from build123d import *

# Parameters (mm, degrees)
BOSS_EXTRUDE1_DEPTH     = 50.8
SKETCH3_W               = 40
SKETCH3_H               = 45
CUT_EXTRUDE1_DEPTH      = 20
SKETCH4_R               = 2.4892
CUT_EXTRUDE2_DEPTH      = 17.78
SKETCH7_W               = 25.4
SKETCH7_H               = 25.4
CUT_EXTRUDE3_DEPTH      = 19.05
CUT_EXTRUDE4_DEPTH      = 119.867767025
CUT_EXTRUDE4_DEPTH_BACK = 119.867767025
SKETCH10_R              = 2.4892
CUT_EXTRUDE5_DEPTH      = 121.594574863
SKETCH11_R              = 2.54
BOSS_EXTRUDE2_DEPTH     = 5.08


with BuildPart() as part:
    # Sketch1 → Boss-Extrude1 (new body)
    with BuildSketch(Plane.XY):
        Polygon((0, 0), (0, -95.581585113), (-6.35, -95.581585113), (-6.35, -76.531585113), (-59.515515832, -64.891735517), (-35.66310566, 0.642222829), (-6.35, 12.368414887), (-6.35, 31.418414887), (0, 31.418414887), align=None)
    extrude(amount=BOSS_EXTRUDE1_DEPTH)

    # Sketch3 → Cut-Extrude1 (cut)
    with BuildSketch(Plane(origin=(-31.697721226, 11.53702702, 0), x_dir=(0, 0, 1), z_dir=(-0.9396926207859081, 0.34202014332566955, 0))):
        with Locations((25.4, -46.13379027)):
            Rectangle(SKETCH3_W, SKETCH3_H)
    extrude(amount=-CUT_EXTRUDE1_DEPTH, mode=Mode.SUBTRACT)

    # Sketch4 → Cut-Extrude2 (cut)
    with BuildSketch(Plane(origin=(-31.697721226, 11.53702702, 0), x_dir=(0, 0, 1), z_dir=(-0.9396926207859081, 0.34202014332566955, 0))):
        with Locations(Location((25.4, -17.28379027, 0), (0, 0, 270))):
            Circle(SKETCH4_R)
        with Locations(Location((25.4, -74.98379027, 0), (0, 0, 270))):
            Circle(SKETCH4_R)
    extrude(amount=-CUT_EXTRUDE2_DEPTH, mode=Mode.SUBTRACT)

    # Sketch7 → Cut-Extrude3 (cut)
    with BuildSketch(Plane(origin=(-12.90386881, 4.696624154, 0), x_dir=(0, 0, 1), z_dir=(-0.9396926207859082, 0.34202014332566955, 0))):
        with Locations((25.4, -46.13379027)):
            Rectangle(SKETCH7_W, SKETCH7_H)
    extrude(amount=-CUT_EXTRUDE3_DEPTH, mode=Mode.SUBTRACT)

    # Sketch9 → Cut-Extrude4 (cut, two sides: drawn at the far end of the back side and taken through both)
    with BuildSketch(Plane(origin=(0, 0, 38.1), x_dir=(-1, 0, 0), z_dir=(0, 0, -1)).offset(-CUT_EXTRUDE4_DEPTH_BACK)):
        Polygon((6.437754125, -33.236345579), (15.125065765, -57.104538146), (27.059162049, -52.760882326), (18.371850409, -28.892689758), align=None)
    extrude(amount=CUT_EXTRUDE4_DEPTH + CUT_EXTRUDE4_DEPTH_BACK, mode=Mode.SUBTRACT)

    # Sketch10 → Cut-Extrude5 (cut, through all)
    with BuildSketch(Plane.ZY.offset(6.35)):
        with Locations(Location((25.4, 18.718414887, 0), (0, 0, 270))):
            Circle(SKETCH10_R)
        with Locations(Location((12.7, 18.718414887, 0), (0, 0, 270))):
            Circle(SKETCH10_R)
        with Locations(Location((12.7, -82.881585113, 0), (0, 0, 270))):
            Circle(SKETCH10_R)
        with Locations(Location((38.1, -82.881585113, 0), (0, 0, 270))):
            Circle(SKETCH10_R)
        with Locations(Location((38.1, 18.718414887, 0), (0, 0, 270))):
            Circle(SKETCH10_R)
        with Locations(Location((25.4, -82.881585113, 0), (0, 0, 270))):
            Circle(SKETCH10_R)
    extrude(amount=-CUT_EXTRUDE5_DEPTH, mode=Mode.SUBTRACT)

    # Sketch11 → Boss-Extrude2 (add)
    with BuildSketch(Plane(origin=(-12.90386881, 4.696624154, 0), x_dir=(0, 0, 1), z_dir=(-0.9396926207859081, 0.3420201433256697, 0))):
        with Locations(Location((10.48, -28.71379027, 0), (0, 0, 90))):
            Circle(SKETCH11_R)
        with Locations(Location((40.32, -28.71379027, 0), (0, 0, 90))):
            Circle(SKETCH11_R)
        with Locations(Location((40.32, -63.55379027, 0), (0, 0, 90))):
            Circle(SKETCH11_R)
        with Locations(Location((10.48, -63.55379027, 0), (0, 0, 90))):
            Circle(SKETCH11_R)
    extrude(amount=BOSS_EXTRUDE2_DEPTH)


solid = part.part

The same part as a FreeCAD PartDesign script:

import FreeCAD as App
import Part
import Sketcher
from FreeCAD import Vector
Q = App.Units.Quantity

doc = App.newDocument("Part")
body = doc.addObject("PartDesign::Body", "Body")

# Sketch on XY plane
sketch1 = body.newObject("Sketcher::SketchObject", "Sketch")
sketch1.AttachmentSupport = (doc.getObject("XY_Plane"), [""])
sketch1.MapMode = "FlatFace"
sketch1.addGeometry(Part.LineSegment(Vector(0, -96, 0), Vector(0, 31, 0)), False)
sketch1.addGeometry(Part.LineSegment(Vector(0, 31, 0), Vector(-6, 31, 0)), False)
sketch1.addGeometry(Part.LineSegment(Vector(-6, 31, 0), Vector(-6, 12, 0)), False)
sketch1.addGeometry(Part.LineSegment(Vector(-6, 12, 0), Vector(-36, 1, 0)), False)
sketch1.addGeometry(Part.LineSegment(Vector(-36, 1, 0), Vector(-60, -65, 0)), False)
sketch1.addGeometry(Part.LineSegment(Vector(-60, -65, 0), Vector(-6, -77, 0)), False)
sketch1.addGeometry(Part.LineSegment(Vector(-6, -77, 0), Vector(-6, -96, 0)), False)
sketch1.addGeometry(Part.LineSegment(Vector(-6, -96, 0), Vector(0, -96, 0)), False)
sketch1.addConstraint(Sketcher.Constraint("Coincident", 0, 2, 1, 1))
sketch1.addConstraint(Sketcher.Constraint("Coincident", 1, 2, 2, 1))
sketch1.addConstraint(Sketcher.Constraint("Coincident", 2, 2, 3, 1))
sketch1.addConstraint(Sketcher.Constraint("Coincident", 3, 2, 4, 1))
sketch1.addConstraint(Sketcher.Constraint("Coincident", 4, 2, 5, 1))
sketch1.addConstraint(Sketcher.Constraint("Coincident", 5, 2, 6, 1))
sketch1.addConstraint(Sketcher.Constraint("Coincident", 6, 2, 7, 1))
sketch1.addConstraint(Sketcher.Constraint("Coincident", 7, 2, 0, 1))
sketch1.addConstraint(Sketcher.Constraint("Vertical", 0))
sketch1.addConstraint(Sketcher.Constraint("Horizontal", 1))
sketch1.addConstraint(Sketcher.Constraint("Vertical", 2))
sketch1.addConstraint(Sketcher.Constraint("Vertical", 6))
sketch1.addConstraint(Sketcher.Constraint("Horizontal", 7))
sketch1.addConstraint(Sketcher.Constraint("PointOnObject", 0, 2, -2))
sketch1.addConstraint(Sketcher.Constraint("Vertical", 2, 2, 5, 2))
sketch1.addConstraint(Sketcher.Constraint("Equal", 2, 6))
sketch1.addConstraint(Sketcher.Constraint("DistanceY", 0, 1, 0, 2, Q("5 in")))
sketch1.addConstraint(Sketcher.Constraint("Angle", 4, Q("-110 deg")))
sketch1.addConstraint(Sketcher.Constraint("DistanceX", 1, 2, 1, 1, Q("0.25 in")))
sketch1.addConstraint(Sketcher.Constraint("DistanceY", 2, 2, 2, 1, Q("0.75 in")))
sketch1.addConstraint(Sketcher.Constraint("Distance", 4, Q("69.739782 mm")))
sketch1.addConstraint(Sketcher.Constraint("DistanceY", 4, 2, 2, 2, Q("77.26015 mm")))
sketch1.addConstraint(Sketcher.Constraint("Distance", 3, Q("31.571534 mm")))
sketch1.addConstraint(Sketcher.Constraint("DistanceY", -1, 1, 0, 2, Q("31.418415 mm")))
pad1 = body.newObject("PartDesign::Pad", "Pad")
pad1.Profile = sketch1
pad1.Length = Q("2 in")

# Sketch on an angled plane
sketch2 = body.newObject("Sketcher::SketchObject", "Sketch001")
sketch2.Placement = App.Placement(Vector(-31.697721, 11.537027, 0), App.Rotation(Vector(0, 0, 1), Vector(0.342020143, 0.939692621, 0), Vector(-0.939692621, 0.342020143, 0), "ZXY"))
sketch2.addGeometry(Part.LineSegment(Vector(5, -24, 0), Vector(5, -69, 0)), False)
sketch2.addGeometry(Part.LineSegment(Vector(5, -69, 0), Vector(45, -69, 0)), False)
sketch2.addGeometry(Part.LineSegment(Vector(45, -69, 0), Vector(45, -24, 0)), False)
sketch2.addGeometry(Part.LineSegment(Vector(45, -24, 0), Vector(5, -24, 0)), False)
sketch2.addConstraint(Sketcher.Constraint("Coincident", 0, 2, 1, 1))
sketch2.addConstraint(Sketcher.Constraint("Coincident", 1, 2, 2, 1))
sketch2.addConstraint(Sketcher.Constraint("Coincident", 2, 2, 3, 1))
sketch2.addConstraint(Sketcher.Constraint("Coincident", 3, 2, 0, 1))
sketch2.addConstraint(Sketcher.Constraint("Vertical", 0))
sketch2.addConstraint(Sketcher.Constraint("Horizontal", 1))
sketch2.addConstraint(Sketcher.Constraint("Vertical", 2))
sketch2.addConstraint(Sketcher.Constraint("Horizontal", 3))
sketch2.addConstraint(Sketcher.Constraint("DistanceX", 1, 1, 1, 2, Q("40 mm")))
sketch2.addConstraint(Sketcher.Constraint("DistanceY", 0, 2, 0, 1, Q("45 mm")))
sketch2.addConstraint(Sketcher.Constraint("DistanceX", -1, 1, 0, 2, Q("5.4 mm")))
sketch2.addConstraint(Sketcher.Constraint("DistanceY", 0, 2, -1, 1, Q("68.63379 mm")))
pocket1 = body.newObject("PartDesign::Pocket", "Pocket")
pocket1.Profile = sketch2
pocket1.Length = 20

# Sketch on an angled plane
sketch3 = body.newObject("Sketcher::SketchObject", "Sketch002")
sketch3.Placement = App.Placement(Vector(-31.697721, 11.537027, 0), App.Rotation(Vector(0, 0, 1), Vector(0.342020143, 0.939692621, 0), Vector(-0.939692621, 0.342020143, 0), "ZXY"))
sketch3.addGeometry(Part.Circle(Vector(25.4, -17.3, 0), Vector(0, 0, 1), 2.5), False)
sketch3.addGeometry(Part.Circle(Vector(25.4, -75, 0), Vector(0, 0, 1), 2.5), False)
sketch3.addConstraint(Sketcher.Constraint("Equal", 0, 1))
sketch3.addConstraint(Sketcher.Constraint("Vertical", 0, 3, 1, 3))
sketch3.addConstraint(Sketcher.Constraint("Diameter", 0, Q("0.196 in")))
sketch3.addConstraint(Sketcher.Constraint("DistanceX", -1, 1, 0, 3, Q("1 in")))
sketch3.addConstraint(Sketcher.Constraint("DistanceY", 1, 3, 0, 3, Q("57.7 mm")))
sketch3.addConstraint(Sketcher.Constraint("DistanceY", 0, 3, -1, 1, Q("17.28379 mm")))
pocket2 = body.newObject("PartDesign::Pocket", "Pocket001")
pocket2.Profile = sketch3
pocket2.Length = Q("0.7 in")

# Sketch on an angled plane
sketch4 = body.newObject("Sketcher::SketchObject", "Sketch003")
sketch4.Placement = App.Placement(Vector(-12.903869, 4.696624, 0), App.Rotation(Vector(0, 0, 1), Vector(0.342020143, 0.939692621, 0), Vector(-0.939692621, 0.342020143, 0), "ZXY"))
sketch4.addGeometry(Part.LineSegment(Vector(13, -33, 0), Vector(13, -59, 0)), False)
sketch4.addGeometry(Part.LineSegment(Vector(13, -59, 0), Vector(38, -59, 0)), False)
sketch4.addGeometry(Part.LineSegment(Vector(38, -59, 0), Vector(38, -33, 0)), False)
sketch4.addGeometry(Part.LineSegment(Vector(38, -33, 0), Vector(13, -33, 0)), False)
sketch4.addConstraint(Sketcher.Constraint("Coincident", 0, 2, 1, 1))
sketch4.addConstraint(Sketcher.Constraint("Coincident", 1, 2, 2, 1))
sketch4.addConstraint(Sketcher.Constraint("Coincident", 2, 2, 3, 1))
sketch4.addConstraint(Sketcher.Constraint("Coincident", 3, 2, 0, 1))
sketch4.addConstraint(Sketcher.Constraint("Vertical", 0))
sketch4.addConstraint(Sketcher.Constraint("Horizontal", 1))
sketch4.addConstraint(Sketcher.Constraint("Vertical", 2))
sketch4.addConstraint(Sketcher.Constraint("Horizontal", 3))
sketch4.addConstraint(Sketcher.Constraint("Equal", 3, 0))
sketch4.addConstraint(Sketcher.Constraint("DistanceX", 1, 1, 1, 2, Q("1 in")))
sketch4.addConstraint(Sketcher.Constraint("DistanceX", -1, 1, 0, 2, Q("0.5 in")))
sketch4.addConstraint(Sketcher.Constraint("DistanceY", 0, 2, -1, 1, Q("58.83379 mm")))
pocket3 = body.newObject("PartDesign::Pocket", "Pocket002")
pocket3.Profile = sketch4
pocket3.Length = Q("0.75 in")

# Sketch on XY plane
sketch5 = body.newObject("Sketcher::SketchObject", "Sketch004")
sketch5.AttachmentSupport = (doc.getObject("XY_Plane"), [""])
sketch5.MapMode = "FlatFace"
sketch5.AttachmentOffset = App.Placement(Vector(0, 0, 1.5 * 25.4), App.Rotation())
sketch5.addGeometry(Part.LineSegment(Vector(-6, -33, 0), Vector(-15, -57, 0)), False)
sketch5.addGeometry(Part.LineSegment(Vector(-15, -57, 0), Vector(-27, -53, 0)), False)
sketch5.addGeometry(Part.LineSegment(Vector(-27, -53, 0), Vector(-18, -29, 0)), False)
sketch5.addGeometry(Part.LineSegment(Vector(-18, -29, 0), Vector(-6, -33, 0)), False)
sketch5.addConstraint(Sketcher.Constraint("Coincident", 0, 2, 1, 1))
sketch5.addConstraint(Sketcher.Constraint("Coincident", 1, 2, 2, 1))
sketch5.addConstraint(Sketcher.Constraint("Coincident", 2, 2, 3, 1))
sketch5.addConstraint(Sketcher.Constraint("Coincident", 3, 2, 0, 1))
sketch5.addConstraint(Sketcher.Constraint("Perpendicular", 0, 1))
sketch5.addConstraint(Sketcher.Constraint("Perpendicular", 1, 2))
sketch5.addConstraint(Sketcher.Constraint("Perpendicular", 2, 3))
sketch5.addConstraint(Sketcher.Constraint("Distance", 0, Q("1 in")))
sketch5.addConstraint(Sketcher.Constraint("Angle", 0, Q("-110 deg")))
sketch5.addConstraint(Sketcher.Constraint("Distance", 1, Q("0.5 in")))
sketch5.addConstraint(Sketcher.Constraint("DistanceY", 1, 2, -1, 1, Q("2.0772001 in")))
sketch5.addConstraint(Sketcher.Constraint("DistanceX", 2, 2, -1, 1, Q("18.37185 mm")))
pocket4 = body.newObject("PartDesign::Pocket", "Pocket003")
pocket4.Profile = sketch5
pocket4.Type = "ThroughAll"
pocket4.Midplane = True

# Sketch on YZ plane
sketch6 = body.newObject("Sketcher::SketchObject", "Sketch005")
sketch6.AttachmentSupport = (doc.getObject("YZ_Plane"), [""])
sketch6.MapMode = "FlatFace"
sketch6.AttachmentOffset = App.Placement(Vector(0, 0, -0.25 * 25.4), App.Rotation())
sketch6.addGeometry(Part.Circle(Vector(18.7, 25.4, 0), Vector(0, 0, 1), 2.5), False)
sketch6.addGeometry(Part.Circle(Vector(18.7, 12.7, 0), Vector(0, 0, 1), 2.5), False)
sketch6.addGeometry(Part.Circle(Vector(-82.9, 12.7, 0), Vector(0, 0, 1), 2.5), False)
sketch6.addGeometry(Part.Circle(Vector(-82.9, 38.1, 0), Vector(0, 0, 1), 2.5), False)
sketch6.addGeometry(Part.Circle(Vector(18.7, 38.1, 0), Vector(0, 0, 1), 2.5), False)
sketch6.addGeometry(Part.Circle(Vector(-82.9, 25.4, 0), Vector(0, 0, 1), 2.5), False)
sketch6.addConstraint(Sketcher.Constraint("Equal", 0, 1))
sketch6.addConstraint(Sketcher.Constraint("Equal", 1, 2))
sketch6.addConstraint(Sketcher.Constraint("Equal", 2, 3))
sketch6.addConstraint(Sketcher.Constraint("Equal", 3, 4))
sketch6.addConstraint(Sketcher.Constraint("Equal", 4, 5))
sketch6.addConstraint(Sketcher.Constraint("Horizontal", 1, 3, 2, 3))
sketch6.addConstraint(Sketcher.Constraint("Horizontal", 3, 3, 4, 3))
sketch6.addConstraint(Sketcher.Constraint("Horizontal", 0, 3, 5, 3))
sketch6.addConstraint(Sketcher.Constraint("Vertical", 0, 3, 1, 3))
sketch6.addConstraint(Sketcher.Constraint("Vertical", 2, 3, 3, 3))
sketch6.addConstraint(Sketcher.Constraint("Vertical", 1, 3, 4, 3))
sketch6.addConstraint(Sketcher.Constraint("Vertical", 3, 3, 5, 3))
sketch6.addConstraint(Sketcher.Constraint("Diameter", 0, Q("0.196 in")))
sketch6.addConstraint(Sketcher.Constraint("DistanceY", -1, 1, 0, 3, Q("1 in")))
sketch6.addConstraint(Sketcher.Constraint("DistanceX", 2, 3, 1, 3, Q("4 in")))
sketch6.addConstraint(Sketcher.Constraint("DistanceY", 2, 3, 3, 3, Q("1 in")))
sketch6.addConstraint(Sketcher.Constraint("DistanceY", -1, 1, 1, 3, Q("0.5 in")))
sketch6.addConstraint(Sketcher.Constraint("DistanceX", -1, 1, 0, 3, Q("18.718415 mm")))
pocket5 = body.newObject("PartDesign::Pocket", "Pocket004")
pocket5.Profile = sketch6
pocket5.Type = "ThroughAll"
pocket5.Reversed = True

# Sketch on an angled plane
sketch7 = body.newObject("Sketcher::SketchObject", "Sketch006")
sketch7.Placement = App.Placement(Vector(-12.903869, 4.696624, 0), App.Rotation(Vector(0, 0, 1), Vector(0.342020143, 0.939692621, 0), Vector(-0.939692621, 0.342020143, 0), "ZXY"))
sketch7.addGeometry(Part.Circle(Vector(10.5, -28.7, 0), Vector(0, 0, 1), 2.5), False)
sketch7.addGeometry(Part.Circle(Vector(40.3, -28.7, 0), Vector(0, 0, 1), 2.5), False)
sketch7.addGeometry(Part.Circle(Vector(40.3, -63.6, 0), Vector(0, 0, 1), 2.5), False)
sketch7.addGeometry(Part.Circle(Vector(10.5, -63.6, 0), Vector(0, 0, 1), 2.5), False)
sketch7.addConstraint(Sketcher.Constraint("Equal", 0, 1))
sketch7.addConstraint(Sketcher.Constraint("Equal", 1, 2))
sketch7.addConstraint(Sketcher.Constraint("Equal", 2, 3))
sketch7.addConstraint(Sketcher.Constraint("Horizontal", 0, 3, 1, 3))
sketch7.addConstraint(Sketcher.Constraint("Horizontal", 2, 3, 3, 3))
sketch7.addConstraint(Sketcher.Constraint("Vertical", 1, 3, 2, 3))
sketch7.addConstraint(Sketcher.Constraint("Vertical", 0, 3, 3, 3))
sketch7.addConstraint(Sketcher.Constraint("Diameter", 0, Q("0.2 in")))
sketch7.addConstraint(Sketcher.Constraint("DistanceX", -1, 1, 0, 3, Q("10.48 mm")))
sketch7.addConstraint(Sketcher.Constraint("DistanceX", -1, 1, 1, 3, Q("40.32 mm")))
sketch7.addConstraint(Sketcher.Constraint("DistanceY", 2, 3, 1, 3, Q("34.84 mm")))
sketch7.addConstraint(Sketcher.Constraint("DistanceY", 0, 3, -1, 1, Q("28.71379 mm")))
pad2 = body.newObject("PartDesign::Pad", "Pad001")
pad2.Profile = sketch7
pad2.Length = Q("0.2 in")

doc.recompute()
